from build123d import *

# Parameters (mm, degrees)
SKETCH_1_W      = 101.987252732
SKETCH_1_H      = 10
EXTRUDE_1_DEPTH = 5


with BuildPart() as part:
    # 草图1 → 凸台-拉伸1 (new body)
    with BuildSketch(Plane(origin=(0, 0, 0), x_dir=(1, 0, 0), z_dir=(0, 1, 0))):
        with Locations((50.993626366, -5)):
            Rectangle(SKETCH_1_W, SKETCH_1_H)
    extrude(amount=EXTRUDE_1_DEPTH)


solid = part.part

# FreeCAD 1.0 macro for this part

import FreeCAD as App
import Part
import Sketcher
from FreeCAD import Vector
Q = App.Units.Quantity


def add_polygon(sketch, points):
    """Adds a closed chain of lines whose ends are joined by coincident constraints."""
    first, n = sketch.GeometryCount, len(points)
    for a, b in zip(points, points[1:] + points[:1]):
        sketch.addGeometry(Part.LineSegment(App.Vector(*a, 0), App.Vector(*b, 0)), False)
    for i in range(n):
        sketch.addConstraint(Sketcher.Constraint("Coincident", first + i, 2, first + (i + 1) % n, 1))

doc = App.newDocument("Part")
body = doc.addObject("PartDesign::Body", "Body")

# Sketch on XZ plane
sketch1 = doc.addObject("Sketcher::SketchObject", "Sketch")
body.addObject(sketch1)
sketch1.AttachmentSupport = (doc.XZ_Plane, [""])
sketch1.MapMode = "FlatFace"
add_polygon(sketch1, [(0, 0), (0, 10), (101.987253, 10), (101.987253, 0)])  # lines 0-3
sketch1.addConstraint([
    Sketcher.Constraint("Vertical", 0),
    Sketcher.Constraint("Horizontal", 1),
    Sketcher.Constraint("Vertical", 2),
    Sketcher.Constraint("Horizontal", 3),
    Sketcher.Constraint("Coincident", 3, 2, -1, 1),
    Sketcher.Constraint("DistanceY", 0, 1, 0, 2, Q("10 mm")),
    Sketcher.Constraint("DistanceX", 1, 1, 1, 2, Q("101.987253 mm")),
])
pad1 = doc.addObject("PartDesign::Pad", "Pad")
body.addObject(pad1)
pad1.Profile = sketch1
pad1.Length = 5
pad1.Reversed = True

doc.recompute()
